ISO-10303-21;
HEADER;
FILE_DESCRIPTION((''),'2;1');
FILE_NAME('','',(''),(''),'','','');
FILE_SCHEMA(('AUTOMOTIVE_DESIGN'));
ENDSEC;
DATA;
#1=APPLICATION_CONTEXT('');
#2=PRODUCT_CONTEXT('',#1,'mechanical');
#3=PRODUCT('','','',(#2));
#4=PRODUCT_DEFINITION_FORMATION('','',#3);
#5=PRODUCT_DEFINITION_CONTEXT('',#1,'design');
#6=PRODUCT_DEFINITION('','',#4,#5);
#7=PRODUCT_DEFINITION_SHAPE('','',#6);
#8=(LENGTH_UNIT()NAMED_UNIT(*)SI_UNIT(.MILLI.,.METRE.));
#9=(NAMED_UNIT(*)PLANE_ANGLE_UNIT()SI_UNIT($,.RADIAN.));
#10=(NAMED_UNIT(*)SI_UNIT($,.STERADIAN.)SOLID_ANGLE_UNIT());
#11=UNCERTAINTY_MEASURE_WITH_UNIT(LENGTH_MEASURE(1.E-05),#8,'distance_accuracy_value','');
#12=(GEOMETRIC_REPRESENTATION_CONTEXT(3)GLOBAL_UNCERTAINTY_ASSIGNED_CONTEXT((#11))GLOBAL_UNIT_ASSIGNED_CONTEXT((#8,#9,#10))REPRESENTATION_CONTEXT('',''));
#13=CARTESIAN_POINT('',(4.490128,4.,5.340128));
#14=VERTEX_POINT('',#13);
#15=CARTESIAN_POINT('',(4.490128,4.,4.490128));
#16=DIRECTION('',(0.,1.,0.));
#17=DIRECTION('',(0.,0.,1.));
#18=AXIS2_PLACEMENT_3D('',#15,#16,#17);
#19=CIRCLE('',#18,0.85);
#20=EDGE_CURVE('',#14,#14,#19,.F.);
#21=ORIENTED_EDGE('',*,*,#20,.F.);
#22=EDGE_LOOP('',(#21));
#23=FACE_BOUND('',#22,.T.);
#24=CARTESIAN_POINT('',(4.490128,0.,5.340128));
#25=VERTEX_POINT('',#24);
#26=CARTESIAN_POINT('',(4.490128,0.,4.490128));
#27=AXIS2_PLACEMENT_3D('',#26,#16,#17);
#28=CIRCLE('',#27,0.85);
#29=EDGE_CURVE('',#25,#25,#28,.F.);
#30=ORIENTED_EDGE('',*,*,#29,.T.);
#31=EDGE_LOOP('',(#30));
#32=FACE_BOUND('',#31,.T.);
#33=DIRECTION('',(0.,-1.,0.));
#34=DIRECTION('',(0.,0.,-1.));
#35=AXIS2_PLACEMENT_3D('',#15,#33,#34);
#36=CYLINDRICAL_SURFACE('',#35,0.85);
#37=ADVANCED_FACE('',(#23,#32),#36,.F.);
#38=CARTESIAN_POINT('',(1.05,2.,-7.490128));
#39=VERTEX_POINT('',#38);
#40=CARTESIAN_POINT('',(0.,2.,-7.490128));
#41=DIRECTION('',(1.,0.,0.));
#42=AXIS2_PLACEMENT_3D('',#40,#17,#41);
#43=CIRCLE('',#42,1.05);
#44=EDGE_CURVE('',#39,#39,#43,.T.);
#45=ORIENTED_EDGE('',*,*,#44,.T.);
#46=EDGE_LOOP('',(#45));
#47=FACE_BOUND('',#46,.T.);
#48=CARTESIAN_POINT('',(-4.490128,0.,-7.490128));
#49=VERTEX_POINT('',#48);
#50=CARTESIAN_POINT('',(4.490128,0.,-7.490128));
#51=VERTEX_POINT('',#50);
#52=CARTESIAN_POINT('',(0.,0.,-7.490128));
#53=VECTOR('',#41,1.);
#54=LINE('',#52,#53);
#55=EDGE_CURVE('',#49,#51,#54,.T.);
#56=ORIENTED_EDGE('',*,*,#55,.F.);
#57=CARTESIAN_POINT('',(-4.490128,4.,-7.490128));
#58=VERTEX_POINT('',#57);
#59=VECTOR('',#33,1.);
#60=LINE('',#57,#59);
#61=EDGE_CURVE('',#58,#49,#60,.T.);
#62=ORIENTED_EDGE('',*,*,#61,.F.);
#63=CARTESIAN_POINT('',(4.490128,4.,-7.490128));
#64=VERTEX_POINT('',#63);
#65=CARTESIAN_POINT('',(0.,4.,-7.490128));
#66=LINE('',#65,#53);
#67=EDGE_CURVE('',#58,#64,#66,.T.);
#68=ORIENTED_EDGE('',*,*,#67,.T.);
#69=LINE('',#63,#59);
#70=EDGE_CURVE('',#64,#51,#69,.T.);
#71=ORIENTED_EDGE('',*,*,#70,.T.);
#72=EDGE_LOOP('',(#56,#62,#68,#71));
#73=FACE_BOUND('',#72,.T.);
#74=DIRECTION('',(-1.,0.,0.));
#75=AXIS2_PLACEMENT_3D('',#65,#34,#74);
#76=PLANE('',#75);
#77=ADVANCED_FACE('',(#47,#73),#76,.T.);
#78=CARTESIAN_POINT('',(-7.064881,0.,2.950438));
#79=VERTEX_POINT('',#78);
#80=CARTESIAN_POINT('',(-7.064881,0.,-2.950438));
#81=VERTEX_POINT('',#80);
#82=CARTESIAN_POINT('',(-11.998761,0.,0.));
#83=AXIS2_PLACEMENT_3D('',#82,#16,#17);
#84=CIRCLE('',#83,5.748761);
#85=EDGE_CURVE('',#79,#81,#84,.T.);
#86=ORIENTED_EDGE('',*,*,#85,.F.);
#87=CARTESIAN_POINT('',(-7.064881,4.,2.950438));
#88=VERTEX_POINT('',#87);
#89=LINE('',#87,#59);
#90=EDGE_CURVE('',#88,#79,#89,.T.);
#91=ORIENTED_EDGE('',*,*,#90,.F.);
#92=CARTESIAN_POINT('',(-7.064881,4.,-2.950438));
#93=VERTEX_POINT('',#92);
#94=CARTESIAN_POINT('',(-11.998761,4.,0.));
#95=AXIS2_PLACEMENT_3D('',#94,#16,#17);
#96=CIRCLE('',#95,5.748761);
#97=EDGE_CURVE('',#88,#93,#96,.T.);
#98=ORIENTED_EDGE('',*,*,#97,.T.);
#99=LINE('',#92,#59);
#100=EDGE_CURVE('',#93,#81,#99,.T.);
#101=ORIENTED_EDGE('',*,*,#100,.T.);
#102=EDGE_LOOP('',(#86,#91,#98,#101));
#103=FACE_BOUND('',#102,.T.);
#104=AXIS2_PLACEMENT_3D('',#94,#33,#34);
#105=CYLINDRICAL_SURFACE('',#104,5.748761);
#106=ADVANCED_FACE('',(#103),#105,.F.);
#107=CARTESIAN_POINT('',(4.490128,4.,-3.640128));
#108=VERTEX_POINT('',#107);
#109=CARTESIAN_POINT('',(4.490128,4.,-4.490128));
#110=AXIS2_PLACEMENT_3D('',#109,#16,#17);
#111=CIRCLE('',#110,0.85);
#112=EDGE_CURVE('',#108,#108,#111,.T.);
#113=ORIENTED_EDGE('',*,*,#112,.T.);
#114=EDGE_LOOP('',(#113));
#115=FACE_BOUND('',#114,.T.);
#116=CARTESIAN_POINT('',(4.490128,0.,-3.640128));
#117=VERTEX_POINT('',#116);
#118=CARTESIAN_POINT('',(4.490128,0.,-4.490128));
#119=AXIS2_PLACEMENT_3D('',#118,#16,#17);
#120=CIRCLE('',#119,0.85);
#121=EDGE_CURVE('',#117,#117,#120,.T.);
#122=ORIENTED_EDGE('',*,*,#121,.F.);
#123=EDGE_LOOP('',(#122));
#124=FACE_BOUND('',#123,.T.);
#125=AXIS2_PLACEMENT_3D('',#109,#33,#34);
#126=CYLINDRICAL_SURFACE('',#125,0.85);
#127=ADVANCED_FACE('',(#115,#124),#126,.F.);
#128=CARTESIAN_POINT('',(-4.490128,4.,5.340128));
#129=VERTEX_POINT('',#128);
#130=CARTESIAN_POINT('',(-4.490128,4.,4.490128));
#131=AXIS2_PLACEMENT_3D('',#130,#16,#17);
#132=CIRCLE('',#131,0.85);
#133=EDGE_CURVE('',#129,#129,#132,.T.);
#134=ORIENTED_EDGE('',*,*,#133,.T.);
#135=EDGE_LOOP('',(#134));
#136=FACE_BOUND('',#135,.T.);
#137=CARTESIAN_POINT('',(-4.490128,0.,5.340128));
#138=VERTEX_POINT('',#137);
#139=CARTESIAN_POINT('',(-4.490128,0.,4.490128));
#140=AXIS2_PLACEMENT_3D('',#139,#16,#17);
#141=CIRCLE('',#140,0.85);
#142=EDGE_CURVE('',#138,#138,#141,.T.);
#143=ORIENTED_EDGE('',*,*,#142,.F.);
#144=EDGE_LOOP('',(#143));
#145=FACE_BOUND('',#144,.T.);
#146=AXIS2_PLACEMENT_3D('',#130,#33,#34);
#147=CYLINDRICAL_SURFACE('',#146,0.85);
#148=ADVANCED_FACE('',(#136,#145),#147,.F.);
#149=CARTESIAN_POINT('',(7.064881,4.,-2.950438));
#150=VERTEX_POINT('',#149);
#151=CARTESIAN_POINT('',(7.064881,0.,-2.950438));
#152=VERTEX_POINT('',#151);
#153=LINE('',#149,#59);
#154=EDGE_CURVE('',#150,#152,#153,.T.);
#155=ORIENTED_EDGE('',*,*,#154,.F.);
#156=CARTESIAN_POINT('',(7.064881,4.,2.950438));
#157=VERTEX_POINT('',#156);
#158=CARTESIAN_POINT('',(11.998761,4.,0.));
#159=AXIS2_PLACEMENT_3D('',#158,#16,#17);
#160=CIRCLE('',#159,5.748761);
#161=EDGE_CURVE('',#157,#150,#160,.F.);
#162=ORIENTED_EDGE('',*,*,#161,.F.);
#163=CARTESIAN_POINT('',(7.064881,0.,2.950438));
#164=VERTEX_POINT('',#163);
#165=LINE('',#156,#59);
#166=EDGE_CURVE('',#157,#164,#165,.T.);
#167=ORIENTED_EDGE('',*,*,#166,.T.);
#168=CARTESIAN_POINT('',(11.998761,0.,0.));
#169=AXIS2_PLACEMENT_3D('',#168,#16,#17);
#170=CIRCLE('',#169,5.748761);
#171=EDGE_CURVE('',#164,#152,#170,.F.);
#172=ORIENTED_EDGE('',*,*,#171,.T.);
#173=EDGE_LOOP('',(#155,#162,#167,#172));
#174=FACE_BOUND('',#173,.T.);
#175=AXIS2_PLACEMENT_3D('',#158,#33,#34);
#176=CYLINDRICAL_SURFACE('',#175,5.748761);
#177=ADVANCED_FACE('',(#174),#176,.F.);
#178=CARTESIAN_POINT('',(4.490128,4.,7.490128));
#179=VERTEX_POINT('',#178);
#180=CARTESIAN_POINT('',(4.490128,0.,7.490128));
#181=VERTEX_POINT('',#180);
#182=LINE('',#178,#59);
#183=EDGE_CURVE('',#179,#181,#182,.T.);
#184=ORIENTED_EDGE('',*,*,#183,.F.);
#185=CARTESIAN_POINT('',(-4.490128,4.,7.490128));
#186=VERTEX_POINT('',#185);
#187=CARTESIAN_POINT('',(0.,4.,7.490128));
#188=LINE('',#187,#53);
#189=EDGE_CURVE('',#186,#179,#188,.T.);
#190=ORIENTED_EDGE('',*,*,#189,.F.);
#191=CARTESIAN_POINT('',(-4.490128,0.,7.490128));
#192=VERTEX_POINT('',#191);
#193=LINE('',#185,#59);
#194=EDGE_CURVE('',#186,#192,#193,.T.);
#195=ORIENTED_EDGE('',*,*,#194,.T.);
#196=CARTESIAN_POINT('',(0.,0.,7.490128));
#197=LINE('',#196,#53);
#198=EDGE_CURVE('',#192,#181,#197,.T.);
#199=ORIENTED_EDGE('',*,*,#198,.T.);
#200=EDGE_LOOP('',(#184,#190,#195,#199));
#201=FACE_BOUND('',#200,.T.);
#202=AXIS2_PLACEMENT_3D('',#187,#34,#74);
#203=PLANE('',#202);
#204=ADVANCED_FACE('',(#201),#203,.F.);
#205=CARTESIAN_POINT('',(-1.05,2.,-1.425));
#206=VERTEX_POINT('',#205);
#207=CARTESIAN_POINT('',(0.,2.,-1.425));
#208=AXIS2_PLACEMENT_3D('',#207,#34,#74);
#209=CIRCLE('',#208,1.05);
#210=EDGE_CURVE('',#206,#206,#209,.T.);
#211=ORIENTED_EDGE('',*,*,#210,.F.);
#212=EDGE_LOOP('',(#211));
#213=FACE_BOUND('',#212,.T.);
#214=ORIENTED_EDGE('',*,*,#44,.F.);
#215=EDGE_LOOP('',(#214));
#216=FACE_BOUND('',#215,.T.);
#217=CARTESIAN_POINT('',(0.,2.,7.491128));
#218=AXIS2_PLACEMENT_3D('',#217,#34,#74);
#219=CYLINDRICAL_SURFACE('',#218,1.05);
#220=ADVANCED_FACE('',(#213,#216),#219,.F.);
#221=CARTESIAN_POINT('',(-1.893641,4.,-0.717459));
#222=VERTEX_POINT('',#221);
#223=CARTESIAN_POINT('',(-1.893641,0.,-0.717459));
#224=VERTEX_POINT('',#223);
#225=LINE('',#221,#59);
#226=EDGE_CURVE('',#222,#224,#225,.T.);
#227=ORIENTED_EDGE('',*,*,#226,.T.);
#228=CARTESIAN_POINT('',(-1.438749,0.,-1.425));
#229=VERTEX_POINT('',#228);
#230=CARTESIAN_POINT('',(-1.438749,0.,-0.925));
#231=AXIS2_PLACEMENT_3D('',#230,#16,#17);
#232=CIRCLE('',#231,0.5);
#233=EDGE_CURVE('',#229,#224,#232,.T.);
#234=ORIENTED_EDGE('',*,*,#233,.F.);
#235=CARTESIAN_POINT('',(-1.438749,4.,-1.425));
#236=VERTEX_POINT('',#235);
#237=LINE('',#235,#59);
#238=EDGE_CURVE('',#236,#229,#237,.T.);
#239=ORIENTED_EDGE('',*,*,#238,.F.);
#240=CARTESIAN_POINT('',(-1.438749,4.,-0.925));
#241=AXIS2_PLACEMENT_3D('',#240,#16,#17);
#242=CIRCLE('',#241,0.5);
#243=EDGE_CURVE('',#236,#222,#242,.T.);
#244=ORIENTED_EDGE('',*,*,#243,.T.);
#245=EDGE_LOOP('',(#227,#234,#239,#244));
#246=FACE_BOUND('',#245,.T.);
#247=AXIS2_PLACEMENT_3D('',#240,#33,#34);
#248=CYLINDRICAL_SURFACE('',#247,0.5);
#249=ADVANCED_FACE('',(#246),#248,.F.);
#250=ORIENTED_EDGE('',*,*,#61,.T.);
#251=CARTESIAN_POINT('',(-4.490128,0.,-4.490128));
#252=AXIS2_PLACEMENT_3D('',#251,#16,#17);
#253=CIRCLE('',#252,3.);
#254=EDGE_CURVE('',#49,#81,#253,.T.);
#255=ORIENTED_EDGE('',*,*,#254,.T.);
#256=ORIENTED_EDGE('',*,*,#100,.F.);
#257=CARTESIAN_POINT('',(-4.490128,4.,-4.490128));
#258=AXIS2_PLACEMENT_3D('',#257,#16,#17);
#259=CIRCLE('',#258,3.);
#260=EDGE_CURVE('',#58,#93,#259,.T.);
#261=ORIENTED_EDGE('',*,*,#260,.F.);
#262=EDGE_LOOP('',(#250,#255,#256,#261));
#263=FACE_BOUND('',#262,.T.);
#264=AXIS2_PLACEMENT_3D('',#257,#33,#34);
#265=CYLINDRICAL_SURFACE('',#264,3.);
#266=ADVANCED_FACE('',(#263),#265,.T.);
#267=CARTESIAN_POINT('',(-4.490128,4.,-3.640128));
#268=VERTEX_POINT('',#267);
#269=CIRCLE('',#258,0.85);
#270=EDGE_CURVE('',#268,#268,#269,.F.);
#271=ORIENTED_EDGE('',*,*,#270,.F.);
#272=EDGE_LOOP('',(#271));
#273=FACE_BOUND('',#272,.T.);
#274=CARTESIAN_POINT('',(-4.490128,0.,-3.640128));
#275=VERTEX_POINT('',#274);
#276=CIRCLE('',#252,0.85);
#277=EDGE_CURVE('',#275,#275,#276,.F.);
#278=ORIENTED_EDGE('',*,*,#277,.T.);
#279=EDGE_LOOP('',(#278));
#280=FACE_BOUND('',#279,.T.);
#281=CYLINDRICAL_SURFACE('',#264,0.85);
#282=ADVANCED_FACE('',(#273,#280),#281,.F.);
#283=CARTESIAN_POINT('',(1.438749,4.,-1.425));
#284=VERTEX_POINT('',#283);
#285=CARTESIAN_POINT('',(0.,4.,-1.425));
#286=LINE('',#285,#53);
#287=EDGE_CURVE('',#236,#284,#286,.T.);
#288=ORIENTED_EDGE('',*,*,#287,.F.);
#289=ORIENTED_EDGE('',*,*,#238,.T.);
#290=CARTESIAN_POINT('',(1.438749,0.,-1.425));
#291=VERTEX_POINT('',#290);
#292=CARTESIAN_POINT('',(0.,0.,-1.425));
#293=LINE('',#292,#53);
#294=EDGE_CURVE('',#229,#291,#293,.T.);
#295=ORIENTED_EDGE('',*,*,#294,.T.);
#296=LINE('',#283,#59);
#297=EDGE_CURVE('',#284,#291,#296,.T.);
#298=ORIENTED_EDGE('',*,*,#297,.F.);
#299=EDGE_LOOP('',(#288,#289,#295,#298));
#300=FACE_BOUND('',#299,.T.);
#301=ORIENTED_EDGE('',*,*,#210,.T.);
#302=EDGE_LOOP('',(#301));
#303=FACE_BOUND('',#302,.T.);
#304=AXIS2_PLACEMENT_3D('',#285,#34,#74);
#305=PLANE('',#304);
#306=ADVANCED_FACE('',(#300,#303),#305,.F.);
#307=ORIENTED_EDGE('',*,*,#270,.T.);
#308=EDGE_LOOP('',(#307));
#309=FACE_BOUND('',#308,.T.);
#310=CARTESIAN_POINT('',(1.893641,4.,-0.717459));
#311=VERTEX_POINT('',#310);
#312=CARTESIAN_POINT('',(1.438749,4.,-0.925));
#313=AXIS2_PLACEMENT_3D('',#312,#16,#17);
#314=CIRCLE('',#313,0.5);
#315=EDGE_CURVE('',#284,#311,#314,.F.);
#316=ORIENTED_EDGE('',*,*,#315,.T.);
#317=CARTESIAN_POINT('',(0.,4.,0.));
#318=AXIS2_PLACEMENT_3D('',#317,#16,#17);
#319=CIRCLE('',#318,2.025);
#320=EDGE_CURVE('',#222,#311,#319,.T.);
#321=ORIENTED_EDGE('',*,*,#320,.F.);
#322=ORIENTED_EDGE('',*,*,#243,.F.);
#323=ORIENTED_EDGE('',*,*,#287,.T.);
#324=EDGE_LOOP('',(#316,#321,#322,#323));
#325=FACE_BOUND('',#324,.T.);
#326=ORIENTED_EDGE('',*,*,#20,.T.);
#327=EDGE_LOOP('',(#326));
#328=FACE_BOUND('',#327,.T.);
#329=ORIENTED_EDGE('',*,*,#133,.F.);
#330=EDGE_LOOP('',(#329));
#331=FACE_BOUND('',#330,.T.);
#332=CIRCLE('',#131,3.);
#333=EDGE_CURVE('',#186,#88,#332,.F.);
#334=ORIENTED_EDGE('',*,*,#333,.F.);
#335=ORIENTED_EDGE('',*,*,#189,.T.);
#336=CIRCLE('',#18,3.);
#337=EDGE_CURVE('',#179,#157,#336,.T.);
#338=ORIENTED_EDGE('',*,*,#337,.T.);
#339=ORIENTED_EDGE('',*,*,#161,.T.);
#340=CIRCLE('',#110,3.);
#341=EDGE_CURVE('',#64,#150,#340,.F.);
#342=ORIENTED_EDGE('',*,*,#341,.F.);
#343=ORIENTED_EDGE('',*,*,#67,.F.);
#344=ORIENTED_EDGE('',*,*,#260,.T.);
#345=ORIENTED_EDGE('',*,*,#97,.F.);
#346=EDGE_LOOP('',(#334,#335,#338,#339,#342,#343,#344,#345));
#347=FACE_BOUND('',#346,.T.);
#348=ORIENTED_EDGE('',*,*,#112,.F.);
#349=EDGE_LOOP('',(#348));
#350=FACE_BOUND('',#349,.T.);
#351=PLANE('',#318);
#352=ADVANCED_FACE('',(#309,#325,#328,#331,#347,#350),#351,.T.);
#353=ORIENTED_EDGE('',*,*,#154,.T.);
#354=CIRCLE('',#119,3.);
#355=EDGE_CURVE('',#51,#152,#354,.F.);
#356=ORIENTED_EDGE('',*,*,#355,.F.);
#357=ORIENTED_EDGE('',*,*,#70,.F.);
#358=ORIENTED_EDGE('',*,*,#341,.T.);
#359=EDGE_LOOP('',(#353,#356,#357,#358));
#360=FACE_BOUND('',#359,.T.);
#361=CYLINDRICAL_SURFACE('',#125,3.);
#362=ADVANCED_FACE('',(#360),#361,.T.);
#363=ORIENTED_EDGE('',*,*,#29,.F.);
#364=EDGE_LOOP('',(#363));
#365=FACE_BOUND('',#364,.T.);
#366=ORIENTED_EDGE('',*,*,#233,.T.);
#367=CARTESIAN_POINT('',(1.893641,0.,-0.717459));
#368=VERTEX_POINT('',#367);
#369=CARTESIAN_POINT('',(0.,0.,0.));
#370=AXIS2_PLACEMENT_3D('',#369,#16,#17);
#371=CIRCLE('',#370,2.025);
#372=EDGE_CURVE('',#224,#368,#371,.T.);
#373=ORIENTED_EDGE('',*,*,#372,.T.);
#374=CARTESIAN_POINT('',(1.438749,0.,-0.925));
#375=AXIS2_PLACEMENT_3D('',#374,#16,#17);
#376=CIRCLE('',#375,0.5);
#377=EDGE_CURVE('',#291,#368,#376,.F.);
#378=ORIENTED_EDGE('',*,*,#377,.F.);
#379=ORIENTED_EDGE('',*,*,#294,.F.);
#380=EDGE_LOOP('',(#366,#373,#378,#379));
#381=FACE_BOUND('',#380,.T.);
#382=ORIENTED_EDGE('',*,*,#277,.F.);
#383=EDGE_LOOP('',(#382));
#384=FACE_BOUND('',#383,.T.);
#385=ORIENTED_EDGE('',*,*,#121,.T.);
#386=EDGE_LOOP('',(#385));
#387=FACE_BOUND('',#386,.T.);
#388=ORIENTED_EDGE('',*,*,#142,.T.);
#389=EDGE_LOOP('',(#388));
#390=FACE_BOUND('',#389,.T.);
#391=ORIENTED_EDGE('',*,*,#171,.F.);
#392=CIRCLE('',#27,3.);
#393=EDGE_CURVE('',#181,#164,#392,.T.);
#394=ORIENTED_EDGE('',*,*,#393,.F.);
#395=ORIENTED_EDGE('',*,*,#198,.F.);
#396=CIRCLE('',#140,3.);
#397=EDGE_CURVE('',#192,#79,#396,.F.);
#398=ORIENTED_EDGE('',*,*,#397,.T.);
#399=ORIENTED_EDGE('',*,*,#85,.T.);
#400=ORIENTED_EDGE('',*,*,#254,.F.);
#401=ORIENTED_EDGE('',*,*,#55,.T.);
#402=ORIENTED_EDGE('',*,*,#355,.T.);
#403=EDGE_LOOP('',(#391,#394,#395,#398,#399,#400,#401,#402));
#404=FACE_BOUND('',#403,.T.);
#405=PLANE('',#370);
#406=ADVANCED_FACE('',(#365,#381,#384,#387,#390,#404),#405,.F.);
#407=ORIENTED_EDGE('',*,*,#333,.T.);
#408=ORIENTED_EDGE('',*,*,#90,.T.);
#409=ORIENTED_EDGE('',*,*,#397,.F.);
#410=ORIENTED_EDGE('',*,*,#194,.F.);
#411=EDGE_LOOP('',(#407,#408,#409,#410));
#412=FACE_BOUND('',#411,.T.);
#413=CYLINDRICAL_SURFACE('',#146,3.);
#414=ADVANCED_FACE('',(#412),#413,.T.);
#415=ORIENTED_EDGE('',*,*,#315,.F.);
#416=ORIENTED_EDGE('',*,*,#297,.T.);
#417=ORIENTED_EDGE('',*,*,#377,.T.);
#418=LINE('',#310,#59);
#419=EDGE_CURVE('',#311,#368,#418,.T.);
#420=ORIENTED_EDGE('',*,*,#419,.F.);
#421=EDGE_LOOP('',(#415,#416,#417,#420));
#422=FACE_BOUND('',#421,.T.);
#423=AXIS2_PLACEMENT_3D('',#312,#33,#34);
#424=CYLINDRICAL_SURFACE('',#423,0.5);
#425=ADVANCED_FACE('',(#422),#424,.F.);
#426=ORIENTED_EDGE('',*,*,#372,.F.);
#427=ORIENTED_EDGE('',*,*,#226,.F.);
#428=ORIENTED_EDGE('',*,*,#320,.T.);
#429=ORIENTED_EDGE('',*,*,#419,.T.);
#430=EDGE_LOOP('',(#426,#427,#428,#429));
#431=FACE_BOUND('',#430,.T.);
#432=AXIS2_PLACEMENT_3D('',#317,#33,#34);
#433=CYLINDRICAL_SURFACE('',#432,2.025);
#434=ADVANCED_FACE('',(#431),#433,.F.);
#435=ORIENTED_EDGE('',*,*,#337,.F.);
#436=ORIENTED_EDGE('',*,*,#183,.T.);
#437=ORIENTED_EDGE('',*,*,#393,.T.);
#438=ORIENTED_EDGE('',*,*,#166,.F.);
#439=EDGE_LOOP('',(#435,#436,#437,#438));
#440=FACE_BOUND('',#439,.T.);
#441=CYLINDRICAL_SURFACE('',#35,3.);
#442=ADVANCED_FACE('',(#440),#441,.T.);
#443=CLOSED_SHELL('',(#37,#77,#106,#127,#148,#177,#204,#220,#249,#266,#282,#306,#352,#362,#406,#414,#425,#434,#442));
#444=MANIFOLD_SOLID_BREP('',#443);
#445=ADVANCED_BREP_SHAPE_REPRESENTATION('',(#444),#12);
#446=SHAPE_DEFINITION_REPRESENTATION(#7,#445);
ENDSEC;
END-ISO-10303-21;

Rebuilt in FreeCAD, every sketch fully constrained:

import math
import FreeCAD as App
import Part
import Sketcher
from FreeCAD import Vector
Q = App.Units.Quantity

doc = App.newDocument("Part")
body = doc.addObject("PartDesign::Body", "Body")

# Sketch on XZ plane
sketch1 = body.newObject("Sketcher::SketchObject", "Sketch")
sketch1.AttachmentSupport = (doc.getObject("XZ_Plane"), [""])
sketch1.MapMode = "FlatFace"
sketch1.addGeometry(Part.LineSegment(Vector(4.49, -7.49, 0), Vector(-4.49, -7.49, 0)), False)
sketch1.addGeometry(Part.ArcOfCircle(Part.Circle(Vector(-4.49, -4.49, 0), Vector(0, 0, 1), 3), math.radians(149), math.radians(270)), False)
sketch1.addGeometry(Part.ArcOfCircle(Part.Circle(Vector(-12, 0, 0), Vector(0, 0, 1), 5.75), math.radians(-31), math.radians(31)), False)
sketch1.addGeometry(Part.ArcOfCircle(Part.Circle(Vector(-4.49, 4.49, 0), Vector(0, 0, 1), 3), math.radians(90), math.radians(211)), False)
sketch1.addGeometry(Part.LineSegment(Vector(-4.49, 7.49, 0), Vector(4.49, 7.49, 0)), False)
sketch1.addGeometry(Part.ArcOfCircle(Part.Circle(Vector(4.49, 4.49, 0), Vector(0, 0, 1), 3), math.radians(-31), math.radians(90)), False)
sketch1.addGeometry(Part.ArcOfCircle(Part.Circle(Vector(12, 0, 0), Vector(0, 0, 1), 5.75), math.radians(149), math.radians(211)), False)
sketch1.addGeometry(Part.ArcOfCircle(Part.Circle(Vector(4.49, -4.49, 0), Vector(0, 0, 1), 3), math.radians(-90), math.radians(31)), False)
sketch1.addGeometry(Part.Circle(Vector(-4.49, 4.49, 0), Vector(0, 0, 1), 0.85), False)
sketch1.addGeometry(Part.Circle(Vector(4.49, 4.49, 0), Vector(0, 0, 1), 0.85), False)
sketch1.addGeometry(Part.ArcOfCircle(Part.Circle(Vector(-1.44, -0.93, 0), Vector(0, 0, 1), 0.5), math.radians(155), math.radians(270)), False)
sketch1.addGeometry(Part.LineSegment(Vector(-1.44, -1.43, 0), Vector(1.44, -1.43, 0)), False)
sketch1.addGeometry(Part.ArcOfCircle(Part.Circle(Vector(1.44, -0.93, 0), Vector(0, 0, 1), 0.5), math.radians(-90), math.radians(25)), False)
sketch1.addGeometry(Part.ArcOfCircle(Part.Circle(Vector(0, 0, 0), Vector(0, 0, 1), 2.02), math.radians(-21), math.radians(201)), False)
sketch1.addGeometry(Part.Circle(Vector(-4.49, -4.49, 0), Vector(0, 0, 1), 0.85), False)
sketch1.addGeometry(Part.Circle(Vector(4.49, -4.49, 0), Vector(0, 0, 1), 0.85), False)
sketch1.addConstraint(Sketcher.Constraint("Tangent", 0, 2, 1, 2))
sketch1.addConstraint(Sketcher.Constraint("Tangent", 1, 1, 2, 1))
sketch1.addConstraint(Sketcher.Constraint("Tangent", 2, 2, 3, 2))
sketch1.addConstraint(Sketcher.Constraint("Tangent", 3, 1, 4, 1))
sketch1.addConstraint(Sketcher.Constraint("Tangent", 4, 2, 5, 2))
sketch1.addConstraint(Sketcher.Constraint("Tangent", 5, 1, 6, 1))
sketch1.addConstraint(Sketcher.Constraint("Tangent", 6, 2, 7, 2))
sketch1.addConstraint(Sketcher.Constraint("Tangent", 7, 1, 0, 1))
sketch1.addConstraint(Sketcher.Constraint("Tangent", 10, 2, 11, 1))
sketch1.addConstraint(Sketcher.Constraint("Tangent", 11, 2, 12, 1))
sketch1.addConstraint(Sketcher.Constraint("Coincident", 12, 2, 13, 1))
sketch1.addConstraint(Sketcher.Constraint("Coincident", 13, 2, 10, 1))
sketch1.addConstraint(Sketcher.Constraint("Horizontal", 0))
sketch1.addConstraint(Sketcher.Constraint("Horizontal", 4))
sketch1.addConstraint(Sketcher.Constraint("Horizontal", 11))
sketch1.addConstraint(Sketcher.Constraint("Coincident", 13, 3, -1, 1))
sketch1.addConstraint(Sketcher.Constraint("Coincident", 8, 3, 3, 3))
sketch1.addConstraint(Sketcher.Constraint("Coincident", 9, 3, 5, 3))
sketch1.addConstraint(Sketcher.Constraint("Coincident", 14, 3, 1, 3))
sketch1.addConstraint(Sketcher.Constraint("Coincident", 15, 3, 7, 3))
sketch1.addConstraint(Sketcher.Constraint("Equal", 1, 3))
sketch1.addConstraint(Sketcher.Constraint("Equal", 3, 5))
sketch1.addConstraint(Sketcher.Constraint("Equal", 2, 6))
sketch1.addConstraint(Sketcher.Constraint("Equal", 5, 7))
sketch1.addConstraint(Sketcher.Constraint("Equal", 8, 9))
sketch1.addConstraint(Sketcher.Constraint("Equal", 10, 12))
sketch1.addConstraint(Sketcher.Constraint("Equal", 9, 14))
sketch1.addConstraint(Sketcher.Constraint("Equal", 14, 15))
sketch1.addConstraint(Sketcher.Constraint("Symmetric", 1, 3, 5, 3, -1, 1))
sketch1.addConstraint(Sketcher.Constraint("Symmetric", 2, 3, 6, 3, -2))
sketch1.addConstraint(Sketcher.Constraint("Horizontal", 12, 2, 13, 2))
sketch1.addConstraint(Sketcher.Constraint("Radius", 1, Q("3 mm")))
sketch1.addConstraint(Sketcher.Constraint("Diameter", 8, Q("1.7 mm")))
sketch1.addConstraint(Sketcher.Constraint("Radius", 10, Q("0.5 mm")))
sketch1.addConstraint(Sketcher.Constraint("Radius", 13, Q("2.025 mm")))
sketch1.addConstraint(Sketcher.Constraint("Radius", 2, Q("5.748761 mm")))
sketch1.addConstraint(Sketcher.Constraint("DistanceX", 11, 1, 11, 2, Q("2.877499 mm")))
sketch1.addConstraint(Sketcher.Constraint("DistanceY", 10, 3, -1, 1, Q("0.925 mm")))
sketch1.addConstraint(Sketcher.Constraint("DistanceX", 0, 2, 0, 1, Q("8.980256 mm")))
sketch1.addConstraint(Sketcher.Constraint("DistanceY", 1, 3, -1, 1, Q("4.490128 mm")))
pad1 = body.newObject("PartDesign::Pad", "Pad")
pad1.Profile = sketch1
pad1.Length = 4
pad1.Reversed = True

# Sketch on XY plane
sketch2 = body.newObject("Sketcher::SketchObject", "Sketch001")
sketch2.AttachmentSupport = (doc.getObject("XY_Plane"), [""])
sketch2.MapMode = "FlatFace"
sketch2.AttachmentOffset = App.Placement(Vector(0, 0, -7.490128), App.Rotation())
sketch2.addGeometry(Part.Circle(Vector(0, 2, 0), Vector(0, 0, 1), 1.1), False)
sketch2.addConstraint(Sketcher.Constraint("PointOnObject", 0, 3, -2))
sketch2.addConstraint(Sketcher.Constraint("Diameter", 0, Q("2.1 mm")))
sketch2.addConstraint(Sketcher.Constraint("DistanceY", -1, 1, 0, 3, Q("2 mm")))
pocket1 = body.newObject("PartDesign::Pocket", "Pocket")
pocket1.Profile = sketch2
pocket1.Type = "UpToFirst"
pocket1.Reversed = True

doc.recompute()
